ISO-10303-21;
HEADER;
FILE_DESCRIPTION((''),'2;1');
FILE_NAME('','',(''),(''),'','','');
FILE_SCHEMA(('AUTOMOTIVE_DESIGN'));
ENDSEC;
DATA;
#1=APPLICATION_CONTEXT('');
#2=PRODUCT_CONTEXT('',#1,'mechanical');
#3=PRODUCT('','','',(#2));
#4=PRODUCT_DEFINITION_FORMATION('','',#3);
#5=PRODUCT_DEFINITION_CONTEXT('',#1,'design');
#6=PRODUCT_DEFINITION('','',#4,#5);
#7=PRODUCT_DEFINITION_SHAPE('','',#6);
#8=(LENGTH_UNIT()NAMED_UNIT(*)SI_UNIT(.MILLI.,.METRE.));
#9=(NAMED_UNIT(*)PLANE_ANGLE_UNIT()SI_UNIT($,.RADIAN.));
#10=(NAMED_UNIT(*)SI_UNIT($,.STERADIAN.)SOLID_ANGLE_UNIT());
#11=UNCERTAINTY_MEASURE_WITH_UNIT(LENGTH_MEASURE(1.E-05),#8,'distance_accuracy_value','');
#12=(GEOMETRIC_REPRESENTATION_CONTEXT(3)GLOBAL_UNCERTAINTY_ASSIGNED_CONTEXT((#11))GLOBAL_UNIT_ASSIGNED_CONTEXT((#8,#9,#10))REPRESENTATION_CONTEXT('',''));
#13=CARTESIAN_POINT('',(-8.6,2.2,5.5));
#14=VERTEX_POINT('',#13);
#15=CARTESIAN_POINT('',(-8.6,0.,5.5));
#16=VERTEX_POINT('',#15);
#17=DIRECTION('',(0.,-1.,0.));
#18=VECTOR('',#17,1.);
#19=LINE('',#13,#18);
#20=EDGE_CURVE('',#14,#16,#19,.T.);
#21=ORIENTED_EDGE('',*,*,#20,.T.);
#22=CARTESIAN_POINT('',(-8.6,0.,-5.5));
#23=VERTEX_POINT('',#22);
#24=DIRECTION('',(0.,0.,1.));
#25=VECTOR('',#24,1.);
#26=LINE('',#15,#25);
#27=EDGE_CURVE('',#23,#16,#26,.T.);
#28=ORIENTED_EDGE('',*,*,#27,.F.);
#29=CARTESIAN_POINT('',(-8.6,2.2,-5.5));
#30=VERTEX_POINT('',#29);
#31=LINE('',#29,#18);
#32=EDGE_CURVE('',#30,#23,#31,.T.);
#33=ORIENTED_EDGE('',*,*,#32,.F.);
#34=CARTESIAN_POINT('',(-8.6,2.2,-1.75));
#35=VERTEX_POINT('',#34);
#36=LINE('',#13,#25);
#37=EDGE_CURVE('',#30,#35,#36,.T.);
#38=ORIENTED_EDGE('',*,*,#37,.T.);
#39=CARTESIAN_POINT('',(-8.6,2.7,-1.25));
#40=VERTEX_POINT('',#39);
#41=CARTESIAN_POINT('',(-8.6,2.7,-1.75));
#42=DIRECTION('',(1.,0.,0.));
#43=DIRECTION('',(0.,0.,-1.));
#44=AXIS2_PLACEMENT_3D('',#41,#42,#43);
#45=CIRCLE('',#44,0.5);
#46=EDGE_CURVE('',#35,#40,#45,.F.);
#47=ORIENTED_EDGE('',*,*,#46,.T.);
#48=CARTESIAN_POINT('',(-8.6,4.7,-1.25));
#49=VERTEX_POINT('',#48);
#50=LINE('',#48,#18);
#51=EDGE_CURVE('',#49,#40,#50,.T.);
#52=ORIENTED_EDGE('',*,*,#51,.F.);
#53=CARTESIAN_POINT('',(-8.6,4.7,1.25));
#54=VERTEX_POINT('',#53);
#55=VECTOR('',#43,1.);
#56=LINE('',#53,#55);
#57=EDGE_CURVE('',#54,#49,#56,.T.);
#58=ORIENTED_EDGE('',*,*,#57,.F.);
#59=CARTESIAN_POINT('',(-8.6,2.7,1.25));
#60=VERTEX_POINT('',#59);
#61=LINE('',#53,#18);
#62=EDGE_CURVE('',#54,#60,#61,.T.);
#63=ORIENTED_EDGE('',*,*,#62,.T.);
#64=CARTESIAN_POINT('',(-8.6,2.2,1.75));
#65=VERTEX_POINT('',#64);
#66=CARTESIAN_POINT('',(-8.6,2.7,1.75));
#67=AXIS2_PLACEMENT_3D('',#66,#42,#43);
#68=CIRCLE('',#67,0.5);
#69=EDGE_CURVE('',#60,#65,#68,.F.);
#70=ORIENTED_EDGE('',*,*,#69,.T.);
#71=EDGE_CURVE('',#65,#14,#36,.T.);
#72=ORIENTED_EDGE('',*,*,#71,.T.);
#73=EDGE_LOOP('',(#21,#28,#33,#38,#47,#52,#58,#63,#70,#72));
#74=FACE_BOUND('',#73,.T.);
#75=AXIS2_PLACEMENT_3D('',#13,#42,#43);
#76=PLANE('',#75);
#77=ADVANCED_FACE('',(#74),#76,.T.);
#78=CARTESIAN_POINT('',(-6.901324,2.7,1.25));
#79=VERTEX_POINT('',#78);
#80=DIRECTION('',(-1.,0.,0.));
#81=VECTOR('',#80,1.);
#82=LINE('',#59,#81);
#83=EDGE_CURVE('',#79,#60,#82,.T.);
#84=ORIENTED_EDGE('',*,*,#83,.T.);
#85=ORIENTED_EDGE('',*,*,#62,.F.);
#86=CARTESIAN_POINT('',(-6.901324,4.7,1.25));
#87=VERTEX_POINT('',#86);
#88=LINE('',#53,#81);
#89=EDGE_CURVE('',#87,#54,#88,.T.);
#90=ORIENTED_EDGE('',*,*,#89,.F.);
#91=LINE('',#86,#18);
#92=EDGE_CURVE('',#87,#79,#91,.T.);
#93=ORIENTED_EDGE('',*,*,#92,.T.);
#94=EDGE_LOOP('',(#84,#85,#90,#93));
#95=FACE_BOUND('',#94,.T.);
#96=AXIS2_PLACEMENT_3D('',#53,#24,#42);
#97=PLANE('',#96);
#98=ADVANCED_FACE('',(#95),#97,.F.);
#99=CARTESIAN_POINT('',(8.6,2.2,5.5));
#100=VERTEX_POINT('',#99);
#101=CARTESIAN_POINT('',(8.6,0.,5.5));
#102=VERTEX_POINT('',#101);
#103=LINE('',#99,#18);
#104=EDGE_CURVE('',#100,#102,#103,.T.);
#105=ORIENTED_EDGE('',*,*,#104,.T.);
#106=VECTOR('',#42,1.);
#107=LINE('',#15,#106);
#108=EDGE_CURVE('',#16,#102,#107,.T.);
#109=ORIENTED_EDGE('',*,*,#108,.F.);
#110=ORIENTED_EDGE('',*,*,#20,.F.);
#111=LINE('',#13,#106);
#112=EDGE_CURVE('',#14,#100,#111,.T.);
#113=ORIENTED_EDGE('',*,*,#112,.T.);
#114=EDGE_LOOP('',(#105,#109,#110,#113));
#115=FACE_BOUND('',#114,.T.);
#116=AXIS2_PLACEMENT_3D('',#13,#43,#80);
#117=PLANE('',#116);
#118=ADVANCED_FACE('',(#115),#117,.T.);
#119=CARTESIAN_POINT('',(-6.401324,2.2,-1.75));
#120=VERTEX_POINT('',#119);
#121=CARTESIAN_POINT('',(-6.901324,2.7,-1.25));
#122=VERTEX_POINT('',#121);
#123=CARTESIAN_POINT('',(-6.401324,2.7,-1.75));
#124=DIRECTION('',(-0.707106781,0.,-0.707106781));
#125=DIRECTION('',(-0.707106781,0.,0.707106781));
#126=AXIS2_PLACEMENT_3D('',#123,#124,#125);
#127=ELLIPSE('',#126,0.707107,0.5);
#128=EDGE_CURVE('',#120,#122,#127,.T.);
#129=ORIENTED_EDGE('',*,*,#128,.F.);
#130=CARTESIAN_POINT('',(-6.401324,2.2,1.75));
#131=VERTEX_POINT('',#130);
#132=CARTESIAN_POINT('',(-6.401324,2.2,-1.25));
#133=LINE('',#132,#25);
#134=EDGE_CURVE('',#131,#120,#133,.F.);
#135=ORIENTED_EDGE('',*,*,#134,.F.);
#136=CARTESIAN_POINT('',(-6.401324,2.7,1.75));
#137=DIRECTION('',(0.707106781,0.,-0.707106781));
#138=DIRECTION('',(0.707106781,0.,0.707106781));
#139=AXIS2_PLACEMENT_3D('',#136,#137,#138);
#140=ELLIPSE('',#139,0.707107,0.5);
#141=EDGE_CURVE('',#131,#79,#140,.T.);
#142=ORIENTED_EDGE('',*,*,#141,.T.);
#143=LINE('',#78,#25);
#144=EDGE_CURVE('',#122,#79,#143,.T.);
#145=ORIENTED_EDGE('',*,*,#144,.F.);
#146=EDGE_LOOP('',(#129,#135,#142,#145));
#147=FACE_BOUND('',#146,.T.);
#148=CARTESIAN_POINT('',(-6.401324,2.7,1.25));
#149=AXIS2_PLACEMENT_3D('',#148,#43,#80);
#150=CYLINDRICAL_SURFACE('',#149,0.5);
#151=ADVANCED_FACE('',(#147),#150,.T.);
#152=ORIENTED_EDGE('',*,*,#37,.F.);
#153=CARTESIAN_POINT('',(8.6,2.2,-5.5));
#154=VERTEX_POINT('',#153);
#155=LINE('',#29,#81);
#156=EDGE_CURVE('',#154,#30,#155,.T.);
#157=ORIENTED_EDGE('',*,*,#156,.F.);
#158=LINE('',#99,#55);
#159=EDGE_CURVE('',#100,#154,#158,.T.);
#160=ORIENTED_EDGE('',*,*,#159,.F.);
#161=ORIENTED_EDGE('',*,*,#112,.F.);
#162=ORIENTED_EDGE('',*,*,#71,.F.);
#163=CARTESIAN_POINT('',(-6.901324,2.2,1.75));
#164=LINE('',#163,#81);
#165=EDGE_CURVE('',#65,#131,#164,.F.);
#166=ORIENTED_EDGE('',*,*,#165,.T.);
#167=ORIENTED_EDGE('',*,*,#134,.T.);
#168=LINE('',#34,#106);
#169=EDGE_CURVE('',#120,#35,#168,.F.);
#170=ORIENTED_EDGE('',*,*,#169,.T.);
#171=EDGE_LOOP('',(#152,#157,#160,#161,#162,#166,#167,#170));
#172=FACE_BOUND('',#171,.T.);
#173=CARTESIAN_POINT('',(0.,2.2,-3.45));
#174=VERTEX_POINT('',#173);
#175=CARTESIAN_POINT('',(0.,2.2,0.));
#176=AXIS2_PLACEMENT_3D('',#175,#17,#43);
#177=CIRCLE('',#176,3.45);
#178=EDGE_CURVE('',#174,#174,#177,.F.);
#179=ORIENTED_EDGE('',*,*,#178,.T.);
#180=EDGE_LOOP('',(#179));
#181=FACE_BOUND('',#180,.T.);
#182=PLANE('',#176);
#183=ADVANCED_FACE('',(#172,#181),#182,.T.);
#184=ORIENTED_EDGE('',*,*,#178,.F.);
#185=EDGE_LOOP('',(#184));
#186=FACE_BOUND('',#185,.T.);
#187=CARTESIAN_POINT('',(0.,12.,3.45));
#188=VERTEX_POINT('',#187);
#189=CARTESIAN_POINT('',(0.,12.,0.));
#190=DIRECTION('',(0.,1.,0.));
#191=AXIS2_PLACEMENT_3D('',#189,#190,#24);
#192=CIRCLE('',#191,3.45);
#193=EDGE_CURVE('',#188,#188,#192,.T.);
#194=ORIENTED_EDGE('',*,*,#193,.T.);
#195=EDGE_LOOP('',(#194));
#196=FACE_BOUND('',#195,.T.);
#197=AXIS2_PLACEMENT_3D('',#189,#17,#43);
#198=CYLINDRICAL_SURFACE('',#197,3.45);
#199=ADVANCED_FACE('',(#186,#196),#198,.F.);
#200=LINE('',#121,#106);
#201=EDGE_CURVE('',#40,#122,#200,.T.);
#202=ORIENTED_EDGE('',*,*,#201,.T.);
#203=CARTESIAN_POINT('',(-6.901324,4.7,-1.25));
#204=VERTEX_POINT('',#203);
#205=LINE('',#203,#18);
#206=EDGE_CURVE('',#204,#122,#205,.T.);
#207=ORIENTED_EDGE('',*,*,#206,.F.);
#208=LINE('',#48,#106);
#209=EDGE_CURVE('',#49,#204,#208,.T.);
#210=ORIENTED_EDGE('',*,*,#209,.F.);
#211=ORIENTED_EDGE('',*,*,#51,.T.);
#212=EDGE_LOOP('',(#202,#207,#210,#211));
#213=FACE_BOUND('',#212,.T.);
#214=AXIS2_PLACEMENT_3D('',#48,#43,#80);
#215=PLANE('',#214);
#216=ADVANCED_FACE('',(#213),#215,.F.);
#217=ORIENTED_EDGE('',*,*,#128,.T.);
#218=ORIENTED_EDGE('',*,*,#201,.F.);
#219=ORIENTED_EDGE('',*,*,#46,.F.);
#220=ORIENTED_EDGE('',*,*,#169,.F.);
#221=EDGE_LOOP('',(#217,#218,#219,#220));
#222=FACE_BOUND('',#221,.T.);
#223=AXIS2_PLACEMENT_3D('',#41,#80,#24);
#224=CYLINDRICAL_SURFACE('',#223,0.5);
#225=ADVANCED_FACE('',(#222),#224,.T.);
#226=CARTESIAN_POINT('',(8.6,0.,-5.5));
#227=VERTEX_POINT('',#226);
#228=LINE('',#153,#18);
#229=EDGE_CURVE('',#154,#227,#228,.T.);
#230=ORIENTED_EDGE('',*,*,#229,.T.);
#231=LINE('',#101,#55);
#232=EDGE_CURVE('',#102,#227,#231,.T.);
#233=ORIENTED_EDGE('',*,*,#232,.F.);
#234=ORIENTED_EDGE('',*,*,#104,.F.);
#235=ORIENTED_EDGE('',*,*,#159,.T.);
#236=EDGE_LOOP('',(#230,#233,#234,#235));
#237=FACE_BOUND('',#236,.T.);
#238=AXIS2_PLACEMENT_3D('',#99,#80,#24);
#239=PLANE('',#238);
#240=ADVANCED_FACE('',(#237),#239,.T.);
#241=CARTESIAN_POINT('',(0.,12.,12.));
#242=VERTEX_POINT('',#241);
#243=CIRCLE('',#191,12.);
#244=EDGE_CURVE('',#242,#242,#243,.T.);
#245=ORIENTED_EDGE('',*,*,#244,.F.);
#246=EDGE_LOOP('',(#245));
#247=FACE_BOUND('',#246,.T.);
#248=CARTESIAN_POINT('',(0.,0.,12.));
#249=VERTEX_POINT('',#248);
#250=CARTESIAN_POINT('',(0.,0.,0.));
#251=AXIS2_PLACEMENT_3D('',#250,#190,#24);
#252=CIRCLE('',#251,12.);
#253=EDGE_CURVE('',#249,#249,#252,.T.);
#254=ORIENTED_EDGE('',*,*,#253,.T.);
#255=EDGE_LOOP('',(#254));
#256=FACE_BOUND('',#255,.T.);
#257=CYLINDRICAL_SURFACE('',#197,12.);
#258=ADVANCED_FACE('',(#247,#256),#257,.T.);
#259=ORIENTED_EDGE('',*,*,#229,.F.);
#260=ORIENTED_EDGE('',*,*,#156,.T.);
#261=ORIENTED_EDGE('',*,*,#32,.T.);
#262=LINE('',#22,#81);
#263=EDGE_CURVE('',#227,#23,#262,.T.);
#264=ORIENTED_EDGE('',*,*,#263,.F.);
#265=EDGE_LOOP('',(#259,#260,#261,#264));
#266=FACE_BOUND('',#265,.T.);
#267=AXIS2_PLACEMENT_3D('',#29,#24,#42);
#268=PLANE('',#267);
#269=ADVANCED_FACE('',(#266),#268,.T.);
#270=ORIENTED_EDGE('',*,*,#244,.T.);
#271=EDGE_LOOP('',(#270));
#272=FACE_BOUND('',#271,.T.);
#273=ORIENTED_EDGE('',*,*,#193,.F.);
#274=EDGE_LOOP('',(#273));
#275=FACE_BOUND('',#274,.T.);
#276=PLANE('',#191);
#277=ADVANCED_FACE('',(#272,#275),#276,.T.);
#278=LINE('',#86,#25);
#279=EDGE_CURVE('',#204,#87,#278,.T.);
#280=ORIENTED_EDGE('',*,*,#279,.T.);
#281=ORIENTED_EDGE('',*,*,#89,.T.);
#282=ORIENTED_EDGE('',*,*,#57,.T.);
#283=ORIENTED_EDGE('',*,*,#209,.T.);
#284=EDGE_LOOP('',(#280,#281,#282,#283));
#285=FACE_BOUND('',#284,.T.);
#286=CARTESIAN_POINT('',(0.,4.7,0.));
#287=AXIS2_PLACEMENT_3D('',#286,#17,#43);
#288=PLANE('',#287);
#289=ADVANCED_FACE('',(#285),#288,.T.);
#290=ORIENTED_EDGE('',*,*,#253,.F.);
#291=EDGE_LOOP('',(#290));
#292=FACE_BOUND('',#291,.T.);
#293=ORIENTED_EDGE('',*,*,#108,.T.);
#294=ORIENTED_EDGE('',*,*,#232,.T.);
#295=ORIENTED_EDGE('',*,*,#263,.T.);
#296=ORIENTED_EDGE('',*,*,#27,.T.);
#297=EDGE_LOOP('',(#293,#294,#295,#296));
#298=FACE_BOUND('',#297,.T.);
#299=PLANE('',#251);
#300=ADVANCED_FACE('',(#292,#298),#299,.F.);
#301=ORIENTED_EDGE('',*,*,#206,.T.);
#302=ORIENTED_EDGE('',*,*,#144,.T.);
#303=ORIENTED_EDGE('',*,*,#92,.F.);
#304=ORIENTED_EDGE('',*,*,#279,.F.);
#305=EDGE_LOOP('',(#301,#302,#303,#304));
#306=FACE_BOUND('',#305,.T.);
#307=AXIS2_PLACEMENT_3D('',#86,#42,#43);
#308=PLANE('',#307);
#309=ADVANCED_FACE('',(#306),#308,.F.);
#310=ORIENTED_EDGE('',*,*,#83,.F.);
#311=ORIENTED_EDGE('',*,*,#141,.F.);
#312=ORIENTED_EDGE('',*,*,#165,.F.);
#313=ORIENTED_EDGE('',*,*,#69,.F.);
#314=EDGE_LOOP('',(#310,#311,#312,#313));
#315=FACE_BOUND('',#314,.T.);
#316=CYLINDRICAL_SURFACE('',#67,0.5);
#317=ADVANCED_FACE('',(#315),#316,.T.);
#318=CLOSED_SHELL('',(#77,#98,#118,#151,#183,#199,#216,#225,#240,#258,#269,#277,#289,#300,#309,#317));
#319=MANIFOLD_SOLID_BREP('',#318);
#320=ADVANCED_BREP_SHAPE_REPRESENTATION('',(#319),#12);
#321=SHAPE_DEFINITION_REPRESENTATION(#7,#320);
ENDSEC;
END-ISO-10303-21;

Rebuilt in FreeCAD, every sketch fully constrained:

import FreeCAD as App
import Part
import Sketcher
from FreeCAD import Vector
Q = App.Units.Quantity


def edges_at(feature, points):
    """Names of the edges that pass closest to the given points."""
    edges = feature.Shape.Edges
    near = lambda p: min(range(len(edges)), key=lambda i: edges[i].distToShape(Part.Vertex(*p))[0])
    return sorted({f"Edge{near(p) + 1}" for p in points})


def add_polygon(sketch, points):
    """Adds a closed chain of lines whose ends are joined by coincident constraints."""
    first, n = sketch.GeometryCount, len(points)
    for a, b in zip(points, points[1:] + points[:1]):
        sketch.addGeometry(Part.LineSegment(App.Vector(*a, 0), App.Vector(*b, 0)), False)
    for i in range(n):
        sketch.addConstraint(Sketcher.Constraint("Coincident", first + i, 2, first + (i + 1) % n, 1))

doc = App.newDocument("Part")
body = doc.addObject("PartDesign::Body", "Body")

sketch1 = body.newObject("Sketcher::SketchObject", "Sketch")
sketch1.AttachmentSupport = (doc.getObject("XZ_Plane"), [""])
sketch1.MapMode = "FlatFace"
sketch1.addGeometry(Part.Circle(Vector(0, 0, 0), Vector(0, 0, 1), 12), False)
sketch1.addConstraint([
    Sketcher.Constraint("Coincident", 0, 3, -1, 1),
    Sketcher.Constraint("Diameter", 0, Q("24 mm")),
])
pad1 = body.newObject("PartDesign::Pad", "Pad")
pad1.Profile = sketch1
pad1.Length = 12
pad1.Reversed = True

sketch2 = body.newObject("Sketcher::SketchObject", "Sketch001")
sketch2.AttachmentSupport = (doc.getObject("XZ_Plane"), [""])
sketch2.MapMode = "FlatFace"
add_polygon(sketch2, [(-9, -6), (-9, 6), (9, 6), (9, -6)])
sketch2.addConstraint([
    Sketcher.Constraint("Vertical", 0),
    Sketcher.Constraint("Horizontal", 1),
    Sketcher.Constraint("Vertical", 2),
    Sketcher.Constraint("Horizontal", 3),
    Sketcher.Constraint("Symmetric", 0, 2, 2, 2, -1, 1),
    Sketcher.Constraint("DistanceY", 0, 1, 0, 2, Q("11 mm")),
    Sketcher.Constraint("DistanceX", 1, 1, 1, 2, Q("17.2 mm")),
])
pocket1 = body.newObject("PartDesign::Pocket", "Pocket")
pocket1.Profile = sketch2
pocket1.Length = 2.2

sketch3 = body.newObject("Sketcher::SketchObject", "Sketch002")
sketch3.AttachmentSupport = (doc.getObject("XZ_Plane"), [""])
sketch3.MapMode = "FlatFace"
sketch3.addGeometry(Part.Circle(Vector(0, 0, 0), Vector(0, 0, 1), 3.5), False)
sketch3.addConstraint([
    Sketcher.Constraint("Coincident", 0, 3, -1, 1),
    Sketcher.Constraint("Diameter", 0, Q("6.9 mm")),
])
pocket2 = body.newObject("PartDesign::Pocket", "Pocket001")
pocket2.Profile = sketch3
pocket2.Type = "ThroughAll"

sketch4 = body.newObject("Sketcher::SketchObject", "Sketch003")
sketch4.AttachmentSupport = (doc.getObject("XZ_Plane"), [""])
sketch4.MapMode = "FlatFace"
sketch4.AttachmentOffset = App.Placement(Vector(0, 0, -2.2), App.Rotation())
add_polygon(sketch4, [(-8.6, 1.2), (-8.6, -1.2), (-6.9, -1.2), (-6.9, 1.2)])
sketch4.addConstraint([
    Sketcher.Constraint("Vertical", 0),
    Sketcher.Constraint("Horizontal", 1),
    Sketcher.Constraint("Vertical", 2),
    Sketcher.Constraint("Horizontal", 3),
    Sketcher.Constraint("DistanceY", 0, 2, 0, 1, Q("2.5 mm")),
    Sketcher.Constraint("DistanceX", 0, 2, -1, 1, Q("8.6 mm")),
    Sketcher.Constraint("DistanceY", 0, 2, -1, 1, Q("1.25 mm")),
    Sketcher.Constraint("DistanceX", 1, 1, 1, 2, Q("1.698676 mm")),
])
pocket3 = body.newObject("PartDesign::Pocket", "Pocket002")
pocket3.Profile = sketch4
pocket3.Length = 2.5
doc.recompute()

fillet = body.newObject("PartDesign::Fillet", "Fillet")
fillet.Base = (pocket3, edges_at(pocket3, [(-7.751, 2.2, -1.25), (-6.901, 2.2, 0), (-7.751, 2.2, 1.25)]))
fillet.Radius = 0.5

doc.recompute()
